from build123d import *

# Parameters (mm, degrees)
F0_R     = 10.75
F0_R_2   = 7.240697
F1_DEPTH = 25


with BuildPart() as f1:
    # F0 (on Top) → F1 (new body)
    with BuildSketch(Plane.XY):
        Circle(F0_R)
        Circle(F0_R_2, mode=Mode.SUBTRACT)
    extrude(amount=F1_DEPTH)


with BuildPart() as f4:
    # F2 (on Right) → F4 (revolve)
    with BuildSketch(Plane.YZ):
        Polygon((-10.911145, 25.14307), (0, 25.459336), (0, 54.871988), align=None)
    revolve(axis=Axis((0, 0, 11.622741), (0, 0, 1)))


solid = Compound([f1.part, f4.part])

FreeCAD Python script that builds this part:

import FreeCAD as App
import Part
import Sketcher
from FreeCAD import Vector


def add_polygon(sketch, points):
    """Adds a closed chain of lines whose ends are joined by coincident constraints."""
    first, n = sketch.GeometryCount, len(points)
    for a, b in zip(points, points[1:] + points[:1]):
        sketch.addGeometry(Part.LineSegment(App.Vector(*a, 0), App.Vector(*b, 0)), False)
    for i in range(n):
        sketch.addConstraint(Sketcher.Constraint("Coincident", first + i, 2, first + (i + 1) % n, 1))

doc = App.newDocument("Part")
body = doc.addObject("PartDesign::Body", "Body")

sketch1 = body.newObject("Sketcher::SketchObject", "Sketch")
sketch1.AttachmentSupport = (doc.getObject("XY_Plane"), [""])
sketch1.MapMode = "FlatFace"
sketch1.addGeometry([
    Part.Circle(Vector(0, 0, 0), Vector(0, 0, 1), 11),
    Part.Circle(Vector(0, 0, 0), Vector(0, 0, 1), 7),
], False)
sketch1.addConstraint([
    Sketcher.Constraint("Coincident", 0, 3, -1, 1),
    Sketcher.Constraint("Coincident", 1, 3, -1, 1),
    Sketcher.Constraint("Diameter", 0, 21.5),
    Sketcher.Constraint("Diameter", 1, 14.481394),
])
pad1 = body.newObject("PartDesign::Pad", "Pad")
pad1.Profile = sketch1
pad1.Length = 25
body2 = doc.addObject("PartDesign::Body", "Body001")

sketch2 = body2.newObject("Sketcher::SketchObject", "Sketch001")
sketch2.AttachmentSupport = (doc.getObject("YZ_Plane001"), [""])
sketch2.MapMode = "FlatFace"
add_polygon(sketch2, [(-11, 25), (0, 25), (0, 55)])
sketch2.addConstraint([
    Sketcher.Constraint("Vertical", 1),
    Sketcher.Constraint("PointOnObject", 0, 2, -2),
    Sketcher.Constraint("Distance", 2, 31.667991),
    Sketcher.Constraint("DistanceY", 1, 1, 1, 2, 29.412652),
    Sketcher.Constraint("DistanceY", -1, 1, 1, 2, 54.871988),
    Sketcher.Constraint("DistanceY", -1, 1, 2, 2, 25.14307),
])
revolution = body2.newObject("PartDesign::Revolution", "Revolution")
revolution.Profile = sketch2
revolution.ReferenceAxis = (sketch2, ["V_Axis"])
revolution.Angle = 360

doc.recompute()
